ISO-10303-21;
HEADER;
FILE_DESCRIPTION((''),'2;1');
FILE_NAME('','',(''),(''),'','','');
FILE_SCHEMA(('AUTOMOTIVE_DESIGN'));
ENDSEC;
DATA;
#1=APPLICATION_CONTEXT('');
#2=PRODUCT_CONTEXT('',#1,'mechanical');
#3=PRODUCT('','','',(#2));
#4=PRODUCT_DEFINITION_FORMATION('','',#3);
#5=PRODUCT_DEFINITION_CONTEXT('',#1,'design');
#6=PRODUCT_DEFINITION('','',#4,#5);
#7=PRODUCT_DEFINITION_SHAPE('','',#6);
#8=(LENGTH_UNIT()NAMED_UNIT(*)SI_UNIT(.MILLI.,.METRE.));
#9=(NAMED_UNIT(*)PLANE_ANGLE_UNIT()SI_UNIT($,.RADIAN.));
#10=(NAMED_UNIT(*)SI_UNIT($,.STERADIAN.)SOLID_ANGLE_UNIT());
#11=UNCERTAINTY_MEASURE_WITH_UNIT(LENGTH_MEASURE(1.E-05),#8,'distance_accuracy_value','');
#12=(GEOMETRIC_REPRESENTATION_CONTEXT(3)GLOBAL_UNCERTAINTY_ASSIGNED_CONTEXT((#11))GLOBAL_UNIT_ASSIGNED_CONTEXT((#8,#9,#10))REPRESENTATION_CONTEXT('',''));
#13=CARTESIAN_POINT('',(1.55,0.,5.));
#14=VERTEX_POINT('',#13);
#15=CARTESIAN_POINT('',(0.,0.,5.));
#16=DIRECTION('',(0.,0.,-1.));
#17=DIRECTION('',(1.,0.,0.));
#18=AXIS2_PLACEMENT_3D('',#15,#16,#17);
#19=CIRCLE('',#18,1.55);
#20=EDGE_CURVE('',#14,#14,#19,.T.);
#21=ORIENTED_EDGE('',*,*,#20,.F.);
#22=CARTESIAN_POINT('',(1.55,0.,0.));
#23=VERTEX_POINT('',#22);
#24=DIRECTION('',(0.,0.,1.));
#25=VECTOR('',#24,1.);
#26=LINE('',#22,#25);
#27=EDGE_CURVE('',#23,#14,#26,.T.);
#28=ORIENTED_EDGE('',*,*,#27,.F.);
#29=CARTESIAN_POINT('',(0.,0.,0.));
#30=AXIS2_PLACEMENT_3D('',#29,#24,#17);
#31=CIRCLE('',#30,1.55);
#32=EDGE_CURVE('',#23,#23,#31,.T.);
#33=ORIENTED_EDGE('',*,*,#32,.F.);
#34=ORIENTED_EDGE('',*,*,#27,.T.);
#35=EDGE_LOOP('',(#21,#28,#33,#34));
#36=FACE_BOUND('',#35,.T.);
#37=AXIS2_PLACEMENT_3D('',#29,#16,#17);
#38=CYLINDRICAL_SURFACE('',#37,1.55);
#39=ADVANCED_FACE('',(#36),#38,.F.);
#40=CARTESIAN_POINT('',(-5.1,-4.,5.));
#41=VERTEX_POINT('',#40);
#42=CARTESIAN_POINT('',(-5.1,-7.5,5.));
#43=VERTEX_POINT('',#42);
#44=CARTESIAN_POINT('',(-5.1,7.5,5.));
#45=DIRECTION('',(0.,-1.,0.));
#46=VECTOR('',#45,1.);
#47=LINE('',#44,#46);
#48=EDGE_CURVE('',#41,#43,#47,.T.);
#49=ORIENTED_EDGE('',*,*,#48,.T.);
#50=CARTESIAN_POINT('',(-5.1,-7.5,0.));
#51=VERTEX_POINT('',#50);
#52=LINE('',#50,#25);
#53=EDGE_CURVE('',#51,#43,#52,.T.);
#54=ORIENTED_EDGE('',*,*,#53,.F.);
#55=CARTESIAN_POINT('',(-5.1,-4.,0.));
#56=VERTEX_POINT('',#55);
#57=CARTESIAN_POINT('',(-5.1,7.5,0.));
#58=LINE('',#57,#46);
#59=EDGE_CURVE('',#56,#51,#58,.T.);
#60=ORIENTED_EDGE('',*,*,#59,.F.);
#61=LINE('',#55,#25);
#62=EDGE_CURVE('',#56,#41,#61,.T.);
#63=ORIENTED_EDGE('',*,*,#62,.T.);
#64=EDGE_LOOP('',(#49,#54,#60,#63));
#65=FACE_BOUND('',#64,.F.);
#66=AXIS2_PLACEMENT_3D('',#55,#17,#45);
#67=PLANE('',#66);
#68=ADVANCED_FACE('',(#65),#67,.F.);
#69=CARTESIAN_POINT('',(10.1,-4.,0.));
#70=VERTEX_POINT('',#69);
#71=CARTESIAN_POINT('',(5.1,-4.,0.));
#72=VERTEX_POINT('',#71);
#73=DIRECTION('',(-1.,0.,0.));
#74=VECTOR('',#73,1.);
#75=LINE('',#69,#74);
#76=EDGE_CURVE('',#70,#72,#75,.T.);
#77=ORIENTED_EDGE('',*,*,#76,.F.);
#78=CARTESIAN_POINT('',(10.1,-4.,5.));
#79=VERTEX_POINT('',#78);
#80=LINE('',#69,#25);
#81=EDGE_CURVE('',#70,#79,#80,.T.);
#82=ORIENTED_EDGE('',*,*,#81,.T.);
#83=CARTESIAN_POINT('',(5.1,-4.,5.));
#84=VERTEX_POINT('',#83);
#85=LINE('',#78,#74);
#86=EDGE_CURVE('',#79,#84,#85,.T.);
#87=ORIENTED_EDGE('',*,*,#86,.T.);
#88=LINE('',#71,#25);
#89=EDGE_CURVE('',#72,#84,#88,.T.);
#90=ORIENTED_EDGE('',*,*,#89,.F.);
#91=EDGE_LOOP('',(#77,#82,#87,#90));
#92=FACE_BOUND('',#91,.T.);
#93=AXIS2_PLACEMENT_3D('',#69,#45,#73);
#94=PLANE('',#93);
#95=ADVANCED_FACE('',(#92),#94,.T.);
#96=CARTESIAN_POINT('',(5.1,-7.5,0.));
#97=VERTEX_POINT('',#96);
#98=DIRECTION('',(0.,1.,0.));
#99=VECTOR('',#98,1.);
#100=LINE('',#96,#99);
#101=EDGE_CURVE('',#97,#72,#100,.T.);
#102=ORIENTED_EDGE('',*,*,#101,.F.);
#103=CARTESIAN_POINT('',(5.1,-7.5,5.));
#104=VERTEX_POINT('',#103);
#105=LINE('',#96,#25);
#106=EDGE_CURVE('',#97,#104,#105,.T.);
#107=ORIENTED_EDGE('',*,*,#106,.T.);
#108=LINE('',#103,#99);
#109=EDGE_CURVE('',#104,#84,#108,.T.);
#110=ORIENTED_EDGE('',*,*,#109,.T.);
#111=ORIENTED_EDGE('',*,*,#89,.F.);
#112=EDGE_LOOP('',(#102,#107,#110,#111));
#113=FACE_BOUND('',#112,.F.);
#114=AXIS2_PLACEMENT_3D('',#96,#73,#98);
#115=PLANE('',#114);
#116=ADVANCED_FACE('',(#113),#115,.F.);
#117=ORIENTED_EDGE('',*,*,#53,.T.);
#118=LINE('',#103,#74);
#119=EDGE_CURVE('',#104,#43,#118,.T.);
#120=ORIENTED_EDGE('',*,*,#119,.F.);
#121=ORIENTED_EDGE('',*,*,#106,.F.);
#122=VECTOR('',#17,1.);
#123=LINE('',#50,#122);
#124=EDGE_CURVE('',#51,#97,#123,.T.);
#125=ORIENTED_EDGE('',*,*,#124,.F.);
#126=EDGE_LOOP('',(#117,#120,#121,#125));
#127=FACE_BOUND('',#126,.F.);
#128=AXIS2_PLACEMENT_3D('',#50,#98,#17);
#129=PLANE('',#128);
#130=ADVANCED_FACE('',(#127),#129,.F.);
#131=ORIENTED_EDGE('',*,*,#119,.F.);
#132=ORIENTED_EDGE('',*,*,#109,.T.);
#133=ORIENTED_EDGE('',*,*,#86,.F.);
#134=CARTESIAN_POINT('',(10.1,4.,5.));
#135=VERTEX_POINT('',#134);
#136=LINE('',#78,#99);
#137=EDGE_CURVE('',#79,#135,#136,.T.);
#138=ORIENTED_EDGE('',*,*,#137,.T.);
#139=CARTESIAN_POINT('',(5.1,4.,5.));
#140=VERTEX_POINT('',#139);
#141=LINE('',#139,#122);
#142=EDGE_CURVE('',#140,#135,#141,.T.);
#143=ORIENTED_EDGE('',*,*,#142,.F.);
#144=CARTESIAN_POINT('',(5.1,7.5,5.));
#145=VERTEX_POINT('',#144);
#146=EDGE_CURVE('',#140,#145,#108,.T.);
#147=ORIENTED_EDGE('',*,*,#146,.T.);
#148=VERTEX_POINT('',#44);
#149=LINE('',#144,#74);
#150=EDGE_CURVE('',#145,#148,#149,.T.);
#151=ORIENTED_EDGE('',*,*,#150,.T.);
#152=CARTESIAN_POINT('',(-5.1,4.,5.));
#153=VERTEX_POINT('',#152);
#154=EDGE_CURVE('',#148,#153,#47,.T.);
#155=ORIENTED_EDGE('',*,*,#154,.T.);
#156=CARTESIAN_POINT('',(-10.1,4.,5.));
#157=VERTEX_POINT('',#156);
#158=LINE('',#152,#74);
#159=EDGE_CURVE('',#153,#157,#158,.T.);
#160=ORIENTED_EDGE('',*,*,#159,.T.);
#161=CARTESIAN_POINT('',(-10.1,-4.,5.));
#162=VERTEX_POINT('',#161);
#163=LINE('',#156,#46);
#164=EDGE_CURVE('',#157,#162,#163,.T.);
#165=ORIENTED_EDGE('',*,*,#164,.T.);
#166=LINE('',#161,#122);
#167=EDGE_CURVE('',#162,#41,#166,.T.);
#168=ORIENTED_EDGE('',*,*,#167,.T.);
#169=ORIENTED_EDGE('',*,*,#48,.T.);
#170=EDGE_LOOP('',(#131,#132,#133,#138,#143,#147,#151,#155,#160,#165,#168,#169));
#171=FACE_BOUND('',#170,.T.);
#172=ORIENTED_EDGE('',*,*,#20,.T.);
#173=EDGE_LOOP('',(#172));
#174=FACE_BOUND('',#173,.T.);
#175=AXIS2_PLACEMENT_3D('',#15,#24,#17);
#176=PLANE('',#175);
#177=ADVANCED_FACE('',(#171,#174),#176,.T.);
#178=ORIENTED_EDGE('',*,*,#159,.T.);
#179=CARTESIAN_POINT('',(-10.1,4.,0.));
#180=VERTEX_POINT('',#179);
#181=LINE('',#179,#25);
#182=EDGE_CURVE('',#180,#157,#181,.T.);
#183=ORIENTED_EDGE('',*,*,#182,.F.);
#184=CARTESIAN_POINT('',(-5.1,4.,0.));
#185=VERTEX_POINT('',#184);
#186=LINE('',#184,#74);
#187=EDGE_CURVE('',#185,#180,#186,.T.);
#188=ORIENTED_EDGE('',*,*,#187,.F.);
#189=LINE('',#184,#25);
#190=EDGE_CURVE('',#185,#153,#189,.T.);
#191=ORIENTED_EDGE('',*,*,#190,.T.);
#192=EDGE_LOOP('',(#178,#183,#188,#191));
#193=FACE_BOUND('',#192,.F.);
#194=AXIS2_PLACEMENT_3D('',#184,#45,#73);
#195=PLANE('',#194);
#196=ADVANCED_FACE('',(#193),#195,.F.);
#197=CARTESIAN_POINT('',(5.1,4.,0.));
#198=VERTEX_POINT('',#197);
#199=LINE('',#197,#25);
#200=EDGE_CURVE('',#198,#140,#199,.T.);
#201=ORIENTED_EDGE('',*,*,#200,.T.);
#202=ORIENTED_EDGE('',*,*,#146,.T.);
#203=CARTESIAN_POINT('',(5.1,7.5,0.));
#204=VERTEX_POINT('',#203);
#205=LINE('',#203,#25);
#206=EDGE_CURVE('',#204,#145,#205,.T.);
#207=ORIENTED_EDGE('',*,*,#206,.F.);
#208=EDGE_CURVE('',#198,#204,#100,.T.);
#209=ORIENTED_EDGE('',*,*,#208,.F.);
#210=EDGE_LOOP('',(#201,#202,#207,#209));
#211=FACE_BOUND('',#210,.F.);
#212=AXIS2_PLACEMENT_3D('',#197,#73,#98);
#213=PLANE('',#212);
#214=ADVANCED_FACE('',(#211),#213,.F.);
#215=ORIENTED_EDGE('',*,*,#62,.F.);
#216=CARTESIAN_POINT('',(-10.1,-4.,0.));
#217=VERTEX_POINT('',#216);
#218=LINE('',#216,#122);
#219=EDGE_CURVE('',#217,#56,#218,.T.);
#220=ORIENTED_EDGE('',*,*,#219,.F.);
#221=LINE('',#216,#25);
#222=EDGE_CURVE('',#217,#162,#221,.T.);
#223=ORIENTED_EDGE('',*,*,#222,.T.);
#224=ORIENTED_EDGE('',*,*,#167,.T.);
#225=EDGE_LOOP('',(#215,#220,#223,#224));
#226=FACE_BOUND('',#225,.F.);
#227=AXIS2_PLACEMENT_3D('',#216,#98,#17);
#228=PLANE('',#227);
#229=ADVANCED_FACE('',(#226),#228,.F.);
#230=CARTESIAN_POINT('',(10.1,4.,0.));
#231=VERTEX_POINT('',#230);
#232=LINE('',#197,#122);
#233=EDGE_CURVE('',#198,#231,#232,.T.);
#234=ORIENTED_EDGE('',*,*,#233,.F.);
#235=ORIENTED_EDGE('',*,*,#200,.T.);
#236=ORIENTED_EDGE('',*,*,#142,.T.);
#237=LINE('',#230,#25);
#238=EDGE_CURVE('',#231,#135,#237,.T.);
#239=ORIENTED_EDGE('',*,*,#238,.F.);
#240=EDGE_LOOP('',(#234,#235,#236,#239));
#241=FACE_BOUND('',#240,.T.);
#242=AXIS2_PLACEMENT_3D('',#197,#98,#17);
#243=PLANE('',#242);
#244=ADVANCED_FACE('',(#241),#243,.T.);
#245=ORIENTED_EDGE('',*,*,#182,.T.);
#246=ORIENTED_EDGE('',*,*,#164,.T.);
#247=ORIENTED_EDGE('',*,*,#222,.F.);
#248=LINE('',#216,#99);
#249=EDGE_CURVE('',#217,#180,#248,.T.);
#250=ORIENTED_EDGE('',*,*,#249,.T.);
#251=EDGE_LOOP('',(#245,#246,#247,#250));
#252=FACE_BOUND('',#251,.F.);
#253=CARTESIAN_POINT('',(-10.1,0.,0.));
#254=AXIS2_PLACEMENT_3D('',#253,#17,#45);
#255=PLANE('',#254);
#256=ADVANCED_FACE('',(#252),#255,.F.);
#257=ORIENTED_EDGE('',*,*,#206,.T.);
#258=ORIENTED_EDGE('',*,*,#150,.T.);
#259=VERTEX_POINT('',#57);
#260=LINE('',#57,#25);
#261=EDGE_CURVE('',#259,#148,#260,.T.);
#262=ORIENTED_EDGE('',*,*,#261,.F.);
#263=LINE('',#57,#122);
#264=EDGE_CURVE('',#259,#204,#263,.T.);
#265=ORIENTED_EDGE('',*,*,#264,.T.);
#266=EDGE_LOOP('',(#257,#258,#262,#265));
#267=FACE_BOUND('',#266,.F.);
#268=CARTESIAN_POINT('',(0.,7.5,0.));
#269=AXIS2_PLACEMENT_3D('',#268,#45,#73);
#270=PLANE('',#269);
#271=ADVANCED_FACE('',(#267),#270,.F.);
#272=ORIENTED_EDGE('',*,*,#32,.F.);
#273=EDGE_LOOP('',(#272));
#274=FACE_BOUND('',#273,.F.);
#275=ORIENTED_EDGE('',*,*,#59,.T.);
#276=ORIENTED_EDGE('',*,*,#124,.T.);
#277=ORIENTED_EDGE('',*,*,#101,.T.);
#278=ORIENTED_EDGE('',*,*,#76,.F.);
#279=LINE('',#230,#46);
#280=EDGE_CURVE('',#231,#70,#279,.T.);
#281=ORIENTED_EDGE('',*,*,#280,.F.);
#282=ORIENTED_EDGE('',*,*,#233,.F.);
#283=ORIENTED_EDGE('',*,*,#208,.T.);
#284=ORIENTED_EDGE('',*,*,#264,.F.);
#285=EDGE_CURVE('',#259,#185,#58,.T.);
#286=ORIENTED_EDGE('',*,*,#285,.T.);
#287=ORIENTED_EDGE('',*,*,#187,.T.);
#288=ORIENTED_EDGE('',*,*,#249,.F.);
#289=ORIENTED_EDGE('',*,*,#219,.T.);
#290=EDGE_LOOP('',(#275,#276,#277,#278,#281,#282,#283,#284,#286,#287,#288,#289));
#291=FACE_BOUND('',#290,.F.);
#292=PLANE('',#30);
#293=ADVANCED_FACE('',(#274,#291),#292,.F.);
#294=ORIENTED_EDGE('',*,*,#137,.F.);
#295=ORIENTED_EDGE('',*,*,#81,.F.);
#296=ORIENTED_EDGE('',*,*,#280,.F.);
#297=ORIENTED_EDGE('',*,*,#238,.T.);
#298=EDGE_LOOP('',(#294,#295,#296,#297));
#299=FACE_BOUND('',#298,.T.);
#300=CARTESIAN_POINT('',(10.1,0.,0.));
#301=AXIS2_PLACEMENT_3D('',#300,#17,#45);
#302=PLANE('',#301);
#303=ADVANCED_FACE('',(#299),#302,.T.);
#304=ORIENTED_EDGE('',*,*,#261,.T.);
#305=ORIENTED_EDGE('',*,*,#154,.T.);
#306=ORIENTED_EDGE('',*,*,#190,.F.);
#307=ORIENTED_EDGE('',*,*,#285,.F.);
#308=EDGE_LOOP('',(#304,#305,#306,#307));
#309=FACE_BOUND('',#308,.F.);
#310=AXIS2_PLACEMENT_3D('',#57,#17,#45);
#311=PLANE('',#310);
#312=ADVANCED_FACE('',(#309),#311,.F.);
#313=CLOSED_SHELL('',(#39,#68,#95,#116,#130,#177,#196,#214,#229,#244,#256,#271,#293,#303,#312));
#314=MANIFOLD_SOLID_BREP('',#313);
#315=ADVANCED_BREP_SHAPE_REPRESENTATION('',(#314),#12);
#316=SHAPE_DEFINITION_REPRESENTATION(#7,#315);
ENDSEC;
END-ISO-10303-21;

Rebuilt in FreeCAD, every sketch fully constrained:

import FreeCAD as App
import Part
import Sketcher

V = App.Vector

doc = App.newDocument("Part")
body = doc.addObject("PartDesign::Body", "Body")

# Sketch on XY plane
sketch1 = body.newObject("Sketcher::SketchObject", "Sketch")
sketch1.AttachmentSupport = (doc.getObject("XY_Plane"), [""])
sketch1.MapMode = "FlatFace"
sketch1.addGeometry([
    Part.LineSegment(V(-5.1, -7.5, 0), V(5.1, -7.5, 0)),  # 0
    Part.LineSegment(V(5.1, -7.5, 0), V(5.1, -4, 0)),  # 1
    Part.LineSegment(V(5.1, -4, 0), V(10.1, -4, 0)),  # 2
    Part.LineSegment(V(10.1, -4, 0), V(10.1, 4, 0)),  # 3
    Part.LineSegment(V(10.1, 4, 0), V(5.1, 4, 0)),  # 4
    Part.LineSegment(V(5.1, 4, 0), V(5.1, 7.5, 0)),  # 5
    Part.LineSegment(V(5.1, 7.5, 0), V(-5.1, 7.5, 0)),  # 6
    Part.LineSegment(V(-5.1, 7.5, 0), V(-5.1, 4, 0)),  # 7
    Part.LineSegment(V(-5.1, 4, 0), V(-10.1, 4, 0)),  # 8
    Part.LineSegment(V(-10.1, 4, 0), V(-10.1, -4, 0)),  # 9
    Part.LineSegment(V(-10.1, -4, 0), V(-5.1, -4, 0)),  # 10
    Part.LineSegment(V(-5.1, -4, 0), V(-5.1, -7.5, 0)),  # 11
    Part.Circle(V(0, 0, 0), V(0, 0, 1), 1.6),  # 12
], False)
sketch1.addConstraint([
    Sketcher.Constraint("Coincident", 0, 2, 1, 1),
    Sketcher.Constraint("Coincident", 1, 2, 2, 1),
    Sketcher.Constraint("Coincident", 2, 2, 3, 1),
    Sketcher.Constraint("Coincident", 3, 2, 4, 1),
    Sketcher.Constraint("Coincident", 4, 2, 5, 1),
    Sketcher.Constraint("Coincident", 5, 2, 6, 1),
    Sketcher.Constraint("Coincident", 6, 2, 7, 1),
    Sketcher.Constraint("Coincident", 7, 2, 8, 1),
    Sketcher.Constraint("Coincident", 8, 2, 9, 1),
    Sketcher.Constraint("Coincident", 9, 2, 10, 1),
    Sketcher.Constraint("Coincident", 10, 2, 11, 1),
    Sketcher.Constraint("Coincident", 11, 2, 0, 1),
    Sketcher.Constraint("Horizontal", 0),
    Sketcher.Constraint("Vertical", 1),
    Sketcher.Constraint("Horizontal", 2),
    Sketcher.Constraint("Vertical", 3),
    Sketcher.Constraint("Horizontal", 4),
    Sketcher.Constraint("Vertical", 5),
    Sketcher.Constraint("Horizontal", 6),
    Sketcher.Constraint("Vertical", 7),
    Sketcher.Constraint("Horizontal", 8),
    Sketcher.Constraint("Vertical", 9),
    Sketcher.Constraint("Horizontal", 10),
    Sketcher.Constraint("Vertical", 11),
    Sketcher.Constraint("Coincident", 12, 3, -1, 1),
    Sketcher.Constraint("Symmetric", 0, 2, 6, 2, -1, 1),
    Sketcher.Constraint("Symmetric", 2, 2, 8, 2, -1, 1),
    Sketcher.Constraint("Symmetric", 4, 2, 10, 2, -1, 1),
    Sketcher.Constraint("Symmetric", 4, 2, 7, 2, -2),
    Sketcher.Constraint("Diameter", 12, 3.1),
    Sketcher.Constraint("DistanceX", 2, 1, 2, 2, 5.0),
    Sketcher.Constraint("DistanceY", 3, 1, 3, 2, 8.0),
    Sketcher.Constraint("DistanceX", 0, 1, 0, 2, 10.2),
    Sketcher.Constraint("DistanceY", 1, 1, 1, 2, 3.5),
])
pad1 = body.newObject("PartDesign::Pad", "Pad")
pad1.Profile = sketch1
pad1.Length = 5

doc.recompute()
